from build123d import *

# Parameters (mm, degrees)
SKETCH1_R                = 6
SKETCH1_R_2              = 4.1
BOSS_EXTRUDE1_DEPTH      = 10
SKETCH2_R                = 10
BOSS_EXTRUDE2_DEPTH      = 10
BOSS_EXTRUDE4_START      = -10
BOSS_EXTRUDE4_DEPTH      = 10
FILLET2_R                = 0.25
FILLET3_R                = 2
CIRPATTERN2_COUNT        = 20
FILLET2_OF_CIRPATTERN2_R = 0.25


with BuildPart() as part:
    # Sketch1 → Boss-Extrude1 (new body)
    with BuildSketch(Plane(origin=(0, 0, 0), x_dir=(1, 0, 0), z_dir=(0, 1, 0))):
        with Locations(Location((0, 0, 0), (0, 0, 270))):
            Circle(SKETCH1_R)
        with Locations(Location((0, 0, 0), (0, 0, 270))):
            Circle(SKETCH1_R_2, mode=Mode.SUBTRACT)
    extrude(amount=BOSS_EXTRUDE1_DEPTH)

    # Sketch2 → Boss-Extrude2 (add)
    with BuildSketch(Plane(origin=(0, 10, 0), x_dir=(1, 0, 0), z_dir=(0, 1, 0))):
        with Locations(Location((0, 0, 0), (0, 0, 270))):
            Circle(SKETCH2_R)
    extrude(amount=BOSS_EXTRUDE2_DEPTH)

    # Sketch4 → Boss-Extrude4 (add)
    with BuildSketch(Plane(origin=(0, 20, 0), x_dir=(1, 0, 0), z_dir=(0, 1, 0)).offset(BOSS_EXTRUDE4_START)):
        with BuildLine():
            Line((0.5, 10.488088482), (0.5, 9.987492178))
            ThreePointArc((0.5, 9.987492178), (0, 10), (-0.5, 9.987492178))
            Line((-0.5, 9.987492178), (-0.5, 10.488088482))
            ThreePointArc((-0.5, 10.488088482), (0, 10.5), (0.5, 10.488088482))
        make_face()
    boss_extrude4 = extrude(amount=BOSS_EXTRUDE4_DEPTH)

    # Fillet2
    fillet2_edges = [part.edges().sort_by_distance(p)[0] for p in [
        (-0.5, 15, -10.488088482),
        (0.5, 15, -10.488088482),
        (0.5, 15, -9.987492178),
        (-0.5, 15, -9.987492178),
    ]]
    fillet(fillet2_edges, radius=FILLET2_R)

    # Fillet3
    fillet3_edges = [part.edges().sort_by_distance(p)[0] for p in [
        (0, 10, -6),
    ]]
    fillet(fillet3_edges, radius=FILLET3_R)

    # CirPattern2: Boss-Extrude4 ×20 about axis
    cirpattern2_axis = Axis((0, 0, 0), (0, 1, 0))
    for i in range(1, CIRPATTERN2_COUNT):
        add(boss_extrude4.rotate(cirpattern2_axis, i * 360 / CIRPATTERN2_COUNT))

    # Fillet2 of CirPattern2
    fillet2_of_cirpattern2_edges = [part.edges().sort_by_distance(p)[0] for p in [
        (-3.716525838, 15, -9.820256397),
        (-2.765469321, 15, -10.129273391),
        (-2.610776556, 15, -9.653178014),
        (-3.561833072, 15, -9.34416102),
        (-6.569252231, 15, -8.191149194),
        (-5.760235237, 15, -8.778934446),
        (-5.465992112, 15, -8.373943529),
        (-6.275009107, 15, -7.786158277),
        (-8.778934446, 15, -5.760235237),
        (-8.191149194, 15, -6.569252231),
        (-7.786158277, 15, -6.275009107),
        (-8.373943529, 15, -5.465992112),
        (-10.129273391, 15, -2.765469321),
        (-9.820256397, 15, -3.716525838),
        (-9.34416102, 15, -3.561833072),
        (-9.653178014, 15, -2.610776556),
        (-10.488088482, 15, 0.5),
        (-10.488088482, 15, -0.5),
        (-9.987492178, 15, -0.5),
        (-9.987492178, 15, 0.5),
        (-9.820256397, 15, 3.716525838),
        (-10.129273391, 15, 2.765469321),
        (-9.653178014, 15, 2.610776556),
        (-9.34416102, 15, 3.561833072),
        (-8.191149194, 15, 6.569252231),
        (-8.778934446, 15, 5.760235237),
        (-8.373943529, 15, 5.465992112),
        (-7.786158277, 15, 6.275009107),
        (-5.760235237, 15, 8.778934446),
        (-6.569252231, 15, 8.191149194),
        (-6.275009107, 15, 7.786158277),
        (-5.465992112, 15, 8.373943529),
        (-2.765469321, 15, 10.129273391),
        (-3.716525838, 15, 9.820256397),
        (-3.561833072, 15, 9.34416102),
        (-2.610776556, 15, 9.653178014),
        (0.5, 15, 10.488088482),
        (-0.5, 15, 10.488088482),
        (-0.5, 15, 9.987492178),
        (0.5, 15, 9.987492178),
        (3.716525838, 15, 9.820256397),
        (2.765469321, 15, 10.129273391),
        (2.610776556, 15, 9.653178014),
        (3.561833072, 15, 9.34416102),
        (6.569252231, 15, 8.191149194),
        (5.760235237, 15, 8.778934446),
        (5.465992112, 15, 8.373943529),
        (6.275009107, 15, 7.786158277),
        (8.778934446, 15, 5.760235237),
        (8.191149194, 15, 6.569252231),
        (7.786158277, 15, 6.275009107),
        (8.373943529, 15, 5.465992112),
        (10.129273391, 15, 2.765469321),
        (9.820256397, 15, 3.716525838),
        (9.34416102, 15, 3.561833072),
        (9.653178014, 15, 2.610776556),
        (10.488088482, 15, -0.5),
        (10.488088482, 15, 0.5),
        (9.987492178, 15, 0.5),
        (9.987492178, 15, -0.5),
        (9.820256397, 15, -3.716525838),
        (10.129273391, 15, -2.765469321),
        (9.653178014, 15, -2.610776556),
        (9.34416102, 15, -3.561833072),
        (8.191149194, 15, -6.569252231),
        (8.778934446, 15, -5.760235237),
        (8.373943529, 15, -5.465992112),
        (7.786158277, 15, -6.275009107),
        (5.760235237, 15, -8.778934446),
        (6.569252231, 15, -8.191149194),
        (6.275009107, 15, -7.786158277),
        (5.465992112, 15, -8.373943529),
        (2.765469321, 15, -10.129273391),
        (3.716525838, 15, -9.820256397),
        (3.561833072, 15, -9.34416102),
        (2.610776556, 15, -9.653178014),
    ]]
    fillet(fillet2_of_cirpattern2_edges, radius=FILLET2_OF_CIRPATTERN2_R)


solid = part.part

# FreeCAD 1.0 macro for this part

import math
import FreeCAD as App
import Part
import Sketcher
Q = App.Units.Quantity


def edges_at(feature, points):
    """Names of the edges that pass closest to the given points."""
    edges = feature.Shape.Edges
    near = lambda p: min(range(len(edges)), key=lambda i: edges[i].distToShape(Part.Vertex(*p))[0])
    return sorted({f"Edge{near(p) + 1}" for p in points})

doc = App.newDocument("Part")
body = doc.addObject("PartDesign::Body", "Body")

sketch1 = body.newObject("Sketcher::SketchObject", "Sketch")
sketch1.AttachmentSupport = (doc.getObject("XZ_Plane"), [""])
sketch1.MapMode = "FlatFace"
sketch1.addGeometry([
    Part.Circle(App.Vector(0, 0, 0), App.Vector(0, 0, 1), 6),
    Part.Circle(App.Vector(0, 0, 0), App.Vector(0, 0, 1), 4.1),
], False)
sketch1.addConstraint([
    Sketcher.Constraint("Coincident", 0, 3, -1, 1),
    Sketcher.Constraint("Coincident", 1, 3, -1, 1),
    Sketcher.Constraint("Diameter", 0, Q("12 mm")),
    Sketcher.Constraint("Diameter", 1, Q("8.2 mm")),
])
pad1 = body.newObject("PartDesign::Pad", "Pad")
pad1.Profile = sketch1
pad1.Length = 10
pad1.Reversed = True

sketch2 = body.newObject("Sketcher::SketchObject", "Sketch001")
sketch2.AttachmentSupport = (doc.getObject("XZ_Plane"), [""])
sketch2.MapMode = "FlatFace"
sketch2.AttachmentOffset = App.Placement(App.Vector(0, 0, -10), App.Rotation())
sketch2.addGeometry(Part.Circle(App.Vector(0, 0, 0), App.Vector(0, 0, 1), 10), False)
sketch2.addConstraint([
    Sketcher.Constraint("Coincident", 0, 3, -1, 1),
    Sketcher.Constraint("Diameter", 0, Q("20 mm")),
])
pad2 = body.newObject("PartDesign::Pad", "Pad001")
pad2.Profile = sketch2
pad2.Length = 10
pad2.Reversed = True

sketch3 = body.newObject("Sketcher::SketchObject", "Sketch002")
sketch3.AttachmentSupport = (doc.getObject("XZ_Plane"), [""])
sketch3.MapMode = "FlatFace"
sketch3.AttachmentOffset = App.Placement(App.Vector(0, 0, -10), App.Rotation())
sketch3.addGeometry([
    Part.LineSegment(App.Vector(0.5, -10, 0), App.Vector(0.5, -10.5, 0)),
    Part.ArcOfCircle(Part.Circle(App.Vector(0, 0, 0), App.Vector(0, 0, 1), 10.5), math.radians(-92.73), math.radians(-87.27)),
    Part.LineSegment(App.Vector(-0.5, -10.5, 0), App.Vector(-0.5, -10, 0)),
    Part.ArcOfCircle(Part.Circle(App.Vector(0, 0, 0), App.Vector(0, 0, 1), 10), math.radians(-92.87), math.radians(-87.13)),
], False)
sketch3.addConstraint([
    Sketcher.Constraint("Coincident", 0, 2, 1, 2),
    Sketcher.Constraint("Coincident", 1, 1, 2, 1),
    Sketcher.Constraint("Coincident", 2, 2, 3, 1),
    Sketcher.Constraint("Coincident", 3, 2, 0, 1),
    Sketcher.Constraint("Vertical", 0),
    Sketcher.Constraint("Vertical", 2),
    Sketcher.Constraint("Coincident", 1, 3, -1, 1),
    Sketcher.Constraint("Coincident", 3, 3, -1, 1),
    Sketcher.Constraint("Horizontal", 0, 2, 1, 1),
    Sketcher.Constraint("Radius", 3, Q("10 mm")),
    Sketcher.Constraint("Radius", 1, Q("10.5 mm")),
    Sketcher.Constraint("DistanceX", 1, 1, 0, 2, Q("1 mm")),
])
pad3 = body.newObject("PartDesign::Pad", "Pad002")
pad3.Profile = sketch3
pad3.Length = 10
pad3.Reversed = True
doc.recompute()

fillet = body.newObject("PartDesign::Fillet", "Fillet")
fillet.Base = (pad3, edges_at(pad3, [
    (-0.5, 15, -10.488),
    (0.5, 15, -10.488),
    (0.5, 15, -9.987),
    (-0.5, 15, -9.987),
]))
fillet.Radius = 0.25
doc.recompute()

fillet2 = body.newObject("PartDesign::Fillet", "Fillet001")
fillet2.Base = (fillet, edges_at(fillet, [(0, 10, -6)]))
fillet2.Radius = 2
doc.recompute()

polarpattern = body.newObject("PartDesign::PolarPattern", "PolarPattern")
polarpattern.Originals = [pad3]
polarpattern.Axis = (doc.getObject("Y_Axis"), [""])
polarpattern.Angle = 360
polarpattern.Occurrences = 20
body.Tip = polarpattern
doc.recompute()

fillet3 = body.newObject("PartDesign::Fillet", "Fillet002")
fillet3.Base = (polarpattern, edges_at(polarpattern, [
    (-3.717, 15, -9.82),
    (-2.765, 15, -10.129),
    (-2.611, 15, -9.653),
    (-3.562, 15, -9.344),
    (-6.569, 15, -8.191),
    (-5.76, 15, -8.779),
    (-5.466, 15, -8.374),
    (-6.275, 15, -7.786),
    (-8.779, 15, -5.76),
    (-8.191, 15, -6.569),
    (-7.786, 15, -6.275),
    (-8.374, 15, -5.466),
    (-10.129, 15, -2.765),
    (-9.82, 15, -3.717),
    (-9.344, 15, -3.562),
    (-9.653, 15, -2.611),
    (-10.488, 15, 0.5),
    (-10.488, 15, -0.5),
    (-9.987, 15, -0.5),
    (-9.987, 15, 0.5),
    (-9.82, 15, 3.717),
    (-10.129, 15, 2.765),
    (-9.653, 15, 2.611),
    (-9.344, 15, 3.562),
    (-8.191, 15, 6.569),
    (-8.779, 15, 5.76),
    (-8.374, 15, 5.466),
    (-7.786, 15, 6.275),
    (-5.76, 15, 8.779),
    (-6.569, 15, 8.191),
    (-6.275, 15, 7.786),
    (-5.466, 15, 8.374),
    (-2.765, 15, 10.129),
    (-3.717, 15, 9.82),
    (-3.562, 15, 9.344),
    (-2.611, 15, 9.653),
    (0.5, 15, 10.488),
    (-0.5, 15, 10.488),
    (-0.5, 15, 9.987),
    (0.5, 15, 9.987),
    (3.717, 15, 9.82),
    (2.765, 15, 10.129),
    (2.611, 15, 9.653),
    (3.562, 15, 9.344),
    (6.569, 15, 8.191),
    (5.76, 15, 8.779),
    (5.466, 15, 8.374),
    (6.275, 15, 7.786),
    (8.779, 15, 5.76),
    (8.191, 15, 6.569),
    (7.786, 15, 6.275),
    (8.374, 15, 5.466),
    (10.129, 15, 2.765),
    (9.82, 15, 3.717),
    (9.344, 15, 3.562),
    (9.653, 15, 2.611),
    (10.488, 15, -0.5),
    (10.488, 15, 0.5),
    (9.987, 15, 0.5),
    (9.987, 15, -0.5),
    (9.82, 15, -3.717),
    (10.129, 15, -2.765),
    (9.653, 15, -2.611),
    (9.344, 15, -3.562),
    (8.191, 15, -6.569),
    (8.779, 15, -5.76),
    (8.374, 15, -5.466),
    (7.786, 15, -6.275),
    (5.76, 15, -8.779),
    (6.569, 15, -8.191),
    (6.275, 15, -7.786),
    (5.466, 15, -8.374),
    (2.765, 15, -10.129),
    (3.717, 15, -9.82),
    (3.562, 15, -9.344),
    (2.611, 15, -9.653),
]))
fillet3.Radius = 0.25

doc.recompute()
